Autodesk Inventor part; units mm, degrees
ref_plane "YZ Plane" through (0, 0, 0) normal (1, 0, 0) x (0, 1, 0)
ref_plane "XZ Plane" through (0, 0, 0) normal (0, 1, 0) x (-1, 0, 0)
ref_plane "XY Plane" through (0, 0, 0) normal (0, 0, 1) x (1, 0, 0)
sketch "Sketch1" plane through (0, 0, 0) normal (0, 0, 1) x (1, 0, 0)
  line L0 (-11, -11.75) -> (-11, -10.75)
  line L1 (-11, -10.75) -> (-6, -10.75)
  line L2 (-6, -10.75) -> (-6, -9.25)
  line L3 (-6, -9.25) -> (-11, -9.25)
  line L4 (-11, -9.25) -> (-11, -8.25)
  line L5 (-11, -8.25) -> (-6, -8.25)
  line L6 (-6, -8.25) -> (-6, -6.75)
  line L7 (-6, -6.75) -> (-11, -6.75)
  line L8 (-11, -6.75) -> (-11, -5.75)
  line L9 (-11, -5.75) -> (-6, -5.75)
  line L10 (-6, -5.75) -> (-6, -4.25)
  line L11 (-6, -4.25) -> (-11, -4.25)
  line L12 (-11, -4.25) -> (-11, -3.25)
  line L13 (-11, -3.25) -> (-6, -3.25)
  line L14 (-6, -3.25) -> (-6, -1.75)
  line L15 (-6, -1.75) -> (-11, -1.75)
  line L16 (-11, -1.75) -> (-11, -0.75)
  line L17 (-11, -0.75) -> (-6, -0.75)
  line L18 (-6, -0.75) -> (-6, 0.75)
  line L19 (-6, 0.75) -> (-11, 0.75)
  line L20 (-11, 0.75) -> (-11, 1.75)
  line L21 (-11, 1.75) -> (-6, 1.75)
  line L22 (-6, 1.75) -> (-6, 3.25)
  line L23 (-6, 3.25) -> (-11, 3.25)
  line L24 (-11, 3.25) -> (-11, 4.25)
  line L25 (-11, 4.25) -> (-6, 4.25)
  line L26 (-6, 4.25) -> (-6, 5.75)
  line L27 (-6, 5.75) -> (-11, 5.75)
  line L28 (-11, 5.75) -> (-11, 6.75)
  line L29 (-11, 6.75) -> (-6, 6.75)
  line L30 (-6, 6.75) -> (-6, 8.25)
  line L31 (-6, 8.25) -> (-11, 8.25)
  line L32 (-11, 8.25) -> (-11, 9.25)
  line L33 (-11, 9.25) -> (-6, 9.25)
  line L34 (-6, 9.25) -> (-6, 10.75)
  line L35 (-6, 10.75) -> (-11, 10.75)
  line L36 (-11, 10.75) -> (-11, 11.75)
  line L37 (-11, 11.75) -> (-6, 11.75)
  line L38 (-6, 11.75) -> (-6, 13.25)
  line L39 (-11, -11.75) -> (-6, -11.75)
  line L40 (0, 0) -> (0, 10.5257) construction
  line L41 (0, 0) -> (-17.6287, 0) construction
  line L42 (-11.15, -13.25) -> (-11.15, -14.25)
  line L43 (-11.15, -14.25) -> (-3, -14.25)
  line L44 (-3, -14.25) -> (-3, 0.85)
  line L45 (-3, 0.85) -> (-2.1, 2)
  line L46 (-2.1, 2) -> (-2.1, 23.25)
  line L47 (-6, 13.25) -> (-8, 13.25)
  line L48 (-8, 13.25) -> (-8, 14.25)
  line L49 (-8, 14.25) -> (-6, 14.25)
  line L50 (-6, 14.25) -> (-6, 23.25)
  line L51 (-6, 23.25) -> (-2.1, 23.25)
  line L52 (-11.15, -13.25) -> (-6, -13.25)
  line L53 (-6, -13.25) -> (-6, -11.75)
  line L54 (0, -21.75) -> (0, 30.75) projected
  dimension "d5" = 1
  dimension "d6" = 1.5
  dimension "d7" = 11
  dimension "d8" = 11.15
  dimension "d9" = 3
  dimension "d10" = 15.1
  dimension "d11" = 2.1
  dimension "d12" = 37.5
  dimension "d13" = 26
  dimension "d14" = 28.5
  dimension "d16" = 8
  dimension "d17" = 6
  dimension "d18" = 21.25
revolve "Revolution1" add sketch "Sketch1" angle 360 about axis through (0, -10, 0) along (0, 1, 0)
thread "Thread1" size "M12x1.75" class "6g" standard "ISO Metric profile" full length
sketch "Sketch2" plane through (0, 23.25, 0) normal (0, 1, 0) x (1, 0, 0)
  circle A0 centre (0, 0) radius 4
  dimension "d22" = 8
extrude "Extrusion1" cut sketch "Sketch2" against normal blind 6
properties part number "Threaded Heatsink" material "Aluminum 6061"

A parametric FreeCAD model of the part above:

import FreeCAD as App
import Part
import Sketcher

V = App.Vector
Q = App.Units.Quantity

doc = App.newDocument("Part")
params = doc.addObject("Spreadsheet::Sheet", "Params")
for row, (alias, value) in enumerate([
    ("sketch1_height", "1 mm"),
    ("sketch1_height2", "1.5 mm"),
    ("sketch1_height3", "15.1 mm"),
    ("sketch1_height4", "21.25 mm"),
    ("sketch1_height5", "9 mm"),
    ("revolution_angle", "360 deg"),
    ("sketch2_diameter", "8 mm"),
    ("pocket1_length", "6 mm"),
], start=1):
    params.set(f"A{row}", alias)
    params.set(f"B{row}", "=" + value)
    params.setAlias(f"B{row}", alias)

body = doc.addObject("PartDesign::Body", "Body")

# Sketch on XY plane
sketch1 = doc.addObject("Sketcher::SketchObject", "Sketch")
body.addObject(sketch1)
sketch1.AttachmentSupport = (doc.XY_Plane, [""])
sketch1.MapMode = "FlatFace"
sketch1.addGeometry(Part.LineSegment(V(-11, -10.8, 0), V(-11, -11.8, 0)), False)
sketch1.addGeometry(Part.LineSegment(V(-11, -11.8, 0), V(-6, -11.8, 0)), False)
sketch1.addGeometry(Part.LineSegment(V(-6, -11.8, 0), V(-6, -13.2, 0)), False)
sketch1.addGeometry(Part.LineSegment(V(-6, -13.2, 0), V(-11.2, -13.2, 0)), False)
sketch1.addGeometry(Part.LineSegment(V(-11.2, -13.2, 0), V(-11.2, -14.2, 0)), False)
sketch1.addGeometry(Part.LineSegment(V(-11.2, -14.2, 0), V(-3, -14.2, 0)), False)
sketch1.addGeometry(Part.LineSegment(V(-3, -14.2, 0), V(-3, 0.8, 0)), False)
sketch1.addGeometry(Part.LineSegment(V(-3, 0.8, 0), V(-2.1, 2, 0)), False)
sketch1.addGeometry(Part.LineSegment(V(-2.1, 2, 0), V(-2.1, 23.2, 0)), False)
sketch1.addGeometry(Part.LineSegment(V(-2.1, 23.2, 0), V(-6, 23.2, 0)), False)
sketch1.addGeometry(Part.LineSegment(V(-6, 23.2, 0), V(-6, 14.2, 0)), False)
sketch1.addGeometry(Part.LineSegment(V(-6, 14.2, 0), V(-8, 14.2, 0)), False)
sketch1.addGeometry(Part.LineSegment(V(-8, 14.2, 0), V(-8, 13.2, 0)), False)
sketch1.addGeometry(Part.LineSegment(V(-8, 13.2, 0), V(-6, 13.2, 0)), False)
sketch1.addGeometry(Part.LineSegment(V(-6, 13.2, 0), V(-6, 11.8, 0)), False)
sketch1.addGeometry(Part.LineSegment(V(-6, 11.8, 0), V(-11, 11.8, 0)), False)
sketch1.addGeometry(Part.LineSegment(V(-11, 11.8, 0), V(-11, 10.8, 0)), False)
sketch1.addGeometry(Part.LineSegment(V(-11, 10.8, 0), V(-6, 10.8, 0)), False)
sketch1.addGeometry(Part.LineSegment(V(-6, 10.8, 0), V(-6, 9.2, 0)), False)
sketch1.addGeometry(Part.LineSegment(V(-6, 9.2, 0), V(-11, 9.2, 0)), False)
sketch1.addGeometry(Part.LineSegment(V(-11, 9.2, 0), V(-11, 8.2, 0)), False)
sketch1.addGeometry(Part.LineSegment(V(-11, 8.2, 0), V(-6, 8.2, 0)), False)
sketch1.addGeometry(Part.LineSegment(V(-6, 8.2, 0), V(-6, 6.8, 0)), False)
sketch1.addGeometry(Part.LineSegment(V(-6, 6.8, 0), V(-11, 6.8, 0)), False)
sketch1.addGeometry(Part.LineSegment(V(-11, 6.8, 0), V(-11, 5.8, 0)), False)
sketch1.addGeometry(Part.LineSegment(V(-11, 5.8, 0), V(-6, 5.8, 0)), False)
sketch1.addGeometry(Part.LineSegment(V(-6, 5.8, 0), V(-6, 4.2, 0)), False)
sketch1.addGeometry(Part.LineSegment(V(-6, 4.2, 0), V(-11, 4.2, 0)), False)
sketch1.addGeometry(Part.LineSegment(V(-11, 4.2, 0), V(-11, 3.2, 0)), False)
sketch1.addGeometry(Part.LineSegment(V(-11, 3.2, 0), V(-6, 3.2, 0)), False)
sketch1.addGeometry(Part.LineSegment(V(-6, 3.2, 0), V(-6, 1.8, 0)), False)
sketch1.addGeometry(Part.LineSegment(V(-6, 1.8, 0), V(-11, 1.8, 0)), False)
sketch1.addGeometry(Part.LineSegment(V(-11, 1.8, 0), V(-11, 0.8, 0)), False)
sketch1.addGeometry(Part.LineSegment(V(-11, 0.8, 0), V(-6, 0.8, 0)), False)
sketch1.addGeometry(Part.LineSegment(V(-6, 0.8, 0), V(-6, -0.8, 0)), False)
sketch1.addGeometry(Part.LineSegment(V(-6, -0.8, 0), V(-11, -0.8, 0)), False)
sketch1.addGeometry(Part.LineSegment(V(-11, -0.8, 0), V(-11, -1.8, 0)), False)
sketch1.addGeometry(Part.LineSegment(V(-11, -1.8, 0), V(-6, -1.8, 0)), False)
sketch1.addGeometry(Part.LineSegment(V(-6, -1.8, 0), V(-6, -3.2, 0)), False)
sketch1.addGeometry(Part.LineSegment(V(-6, -3.2, 0), V(-11, -3.2, 0)), False)
sketch1.addGeometry(Part.LineSegment(V(-11, -3.2, 0), V(-11, -4.2, 0)), False)
sketch1.addGeometry(Part.LineSegment(V(-11, -4.2, 0), V(-6, -4.2, 0)), False)
sketch1.addGeometry(Part.LineSegment(V(-6, -4.2, 0), V(-6, -5.8, 0)), False)
sketch1.addGeometry(Part.LineSegment(V(-6, -5.8, 0), V(-11, -5.8, 0)), False)
sketch1.addGeometry(Part.LineSegment(V(-11, -5.8, 0), V(-11, -6.8, 0)), False)
sketch1.addGeometry(Part.LineSegment(V(-11, -6.8, 0), V(-6, -6.8, 0)), False)
sketch1.addGeometry(Part.LineSegment(V(-6, -6.8, 0), V(-6, -8.2, 0)), False)
sketch1.addGeometry(Part.LineSegment(V(-6, -8.2, 0), V(-11, -8.2, 0)), False)
sketch1.addGeometry(Part.LineSegment(V(-11, -8.2, 0), V(-11, -9.2, 0)), False)
sketch1.addGeometry(Part.LineSegment(V(-11, -9.2, 0), V(-6, -9.2, 0)), False)
sketch1.addGeometry(Part.LineSegment(V(-6, -9.2, 0), V(-6, -10.8, 0)), False)
sketch1.addGeometry(Part.LineSegment(V(-6, -10.8, 0), V(-11, -10.8, 0)), False)
sketch1.addConstraint(Sketcher.Constraint("Coincident", 0, 2, 1, 1))
sketch1.addConstraint(Sketcher.Constraint("Coincident", 1, 2, 2, 1))
sketch1.addConstraint(Sketcher.Constraint("Coincident", 2, 2, 3, 1))
sketch1.addConstraint(Sketcher.Constraint("Coincident", 3, 2, 4, 1))
sketch1.addConstraint(Sketcher.Constraint("Coincident", 4, 2, 5, 1))
sketch1.addConstraint(Sketcher.Constraint("Coincident", 5, 2, 6, 1))
sketch1.addConstraint(Sketcher.Constraint("Coincident", 6, 2, 7, 1))
sketch1.addConstraint(Sketcher.Constraint("Coincident", 7, 2, 8, 1))
sketch1.addConstraint(Sketcher.Constraint("Coincident", 8, 2, 9, 1))
sketch1.addConstraint(Sketcher.Constraint("Coincident", 9, 2, 10, 1))
sketch1.addConstraint(Sketcher.Constraint("Coincident", 10, 2, 11, 1))
sketch1.addConstraint(Sketcher.Constraint("Coincident", 11, 2, 12, 1))
sketch1.addConstraint(Sketcher.Constraint("Coincident", 12, 2, 13, 1))
sketch1.addConstraint(Sketcher.Constraint("Coincident", 13, 2, 14, 1))
sketch1.addConstraint(Sketcher.Constraint("Coincident", 14, 2, 15, 1))
sketch1.addConstraint(Sketcher.Constraint("Coincident", 15, 2, 16, 1))
sketch1.addConstraint(Sketcher.Constraint("Coincident", 16, 2, 17, 1))
sketch1.addConstraint(Sketcher.Constraint("Coincident", 17, 2, 18, 1))
sketch1.addConstraint(Sketcher.Constraint("Coincident", 18, 2, 19, 1))
sketch1.addConstraint(Sketcher.Constraint("Coincident", 19, 2, 20, 1))
sketch1.addConstraint(Sketcher.Constraint("Coincident", 20, 2, 21, 1))
sketch1.addConstraint(Sketcher.Constraint("Coincident", 21, 2, 22, 1))
sketch1.addConstraint(Sketcher.Constraint("Coincident", 22, 2, 23, 1))
sketch1.addConstraint(Sketcher.Constraint("Coincident", 23, 2, 24, 1))
sketch1.addConstraint(Sketcher.Constraint("Coincident", 24, 2, 25, 1))
sketch1.addConstraint(Sketcher.Constraint("Coincident", 25, 2, 26, 1))
sketch1.addConstraint(Sketcher.Constraint("Coincident", 26, 2, 27, 1))
sketch1.addConstraint(Sketcher.Constraint("Coincident", 27, 2, 28, 1))
sketch1.addConstraint(Sketcher.Constraint("Coincident", 28, 2, 29, 1))
sketch1.addConstraint(Sketcher.Constraint("Coincident", 29, 2, 30, 1))
sketch1.addConstraint(Sketcher.Constraint("Coincident", 30, 2, 31, 1))
sketch1.addConstraint(Sketcher.Constraint("Coincident", 31, 2, 32, 1))
sketch1.addConstraint(Sketcher.Constraint("Coincident", 32, 2, 33, 1))
sketch1.addConstraint(Sketcher.Constraint("Coincident", 33, 2, 34, 1))
sketch1.addConstraint(Sketcher.Constraint("Coincident", 34, 2, 35, 1))
sketch1.addConstraint(Sketcher.Constraint("Coincident", 35, 2, 36, 1))
sketch1.addConstraint(Sketcher.Constraint("Coincident", 36, 2, 37, 1))
sketch1.addConstraint(Sketcher.Constraint("Coincident", 37, 2, 38, 1))
sketch1.addConstraint(Sketcher.Constraint("Coincident", 38, 2, 39, 1))
sketch1.addConstraint(Sketcher.Constraint("Coincident", 39, 2, 40, 1))
sketch1.addConstraint(Sketcher.Constraint("Coincident", 40, 2, 41, 1))
sketch1.addConstraint(Sketcher.Constraint("Coincident", 41, 2, 42, 1))
sketch1.addConstraint(Sketcher.Constraint("Coincident", 42, 2, 43, 1))
sketch1.addConstraint(Sketcher.Constraint("Coincident", 43, 2, 44, 1))
sketch1.addConstraint(Sketcher.Constraint("Coincident", 44, 2, 45, 1))
sketch1.addConstraint(Sketcher.Constraint("Coincident", 45, 2, 46, 1))
sketch1.addConstraint(Sketcher.Constraint("Coincident", 46, 2, 47, 1))
sketch1.addConstraint(Sketcher.Constraint("Coincident", 47, 2, 48, 1))
sketch1.addConstraint(Sketcher.Constraint("Coincident", 48, 2, 49, 1))
sketch1.addConstraint(Sketcher.Constraint("Coincident", 49, 2, 50, 1))
sketch1.addConstraint(Sketcher.Constraint("Coincident", 50, 2, 51, 1))
sketch1.addConstraint(Sketcher.Constraint("Coincident", 51, 2, 0, 1))
sketch1.addConstraint(Sketcher.Constraint("Vertical", 0))
sketch1.addConstraint(Sketcher.Constraint("Horizontal", 1))
sketch1.addConstraint(Sketcher.Constraint("Vertical", 2))
sketch1.addConstraint(Sketcher.Constraint("Horizontal", 3))
sketch1.addConstraint(Sketcher.Constraint("Vertical", 4))
sketch1.addConstraint(Sketcher.Constraint("Horizontal", 5))
sketch1.addConstraint(Sketcher.Constraint("Vertical", 6))
sketch1.addConstraint(Sketcher.Constraint("Vertical", 8))
sketch1.addConstraint(Sketcher.Constraint("Horizontal", 9))
sketch1.addConstraint(Sketcher.Constraint("Vertical", 10))
sketch1.addConstraint(Sketcher.Constraint("Horizontal", 11))
sketch1.addConstraint(Sketcher.Constraint("Vertical", 12))
sketch1.addConstraint(Sketcher.Constraint("Horizontal", 13))
sketch1.addConstraint(Sketcher.Constraint("Vertical", 14))
sketch1.addConstraint(Sketcher.Constraint("Horizontal", 15))
sketch1.addConstraint(Sketcher.Constraint("Vertical", 16))
sketch1.addConstraint(Sketcher.Constraint("Horizontal", 17))
sketch1.addConstraint(Sketcher.Constraint("Vertical", 18))
sketch1.addConstraint(Sketcher.Constraint("Horizontal", 19))
sketch1.addConstraint(Sketcher.Constraint("Vertical", 20))
sketch1.addConstraint(Sketcher.Constraint("Horizontal", 21))
sketch1.addConstraint(Sketcher.Constraint("Vertical", 22))
sketch1.addConstraint(Sketcher.Constraint("Horizontal", 23))
sketch1.addConstraint(Sketcher.Constraint("Vertical", 24))
sketch1.addConstraint(Sketcher.Constraint("Horizontal", 25))
sketch1.addConstraint(Sketcher.Constraint("Vertical", 26))
sketch1.addConstraint(Sketcher.Constraint("Horizontal", 27))
sketch1.addConstraint(Sketcher.Constraint("Vertical", 28))
sketch1.addConstraint(Sketcher.Constraint("Horizontal", 29))
sketch1.addConstraint(Sketcher.Constraint("Vertical", 30))
sketch1.addConstraint(Sketcher.Constraint("Horizontal", 31))
sketch1.addConstraint(Sketcher.Constraint("Vertical", 32))
sketch1.addConstraint(Sketcher.Constraint("Horizontal", 33))
sketch1.addConstraint(Sketcher.Constraint("Vertical", 34))
sketch1.addConstraint(Sketcher.Constraint("Horizontal", 35))
sketch1.addConstraint(Sketcher.Constraint("Vertical", 36))
sketch1.addConstraint(Sketcher.Constraint("Horizontal", 37))
sketch1.addConstraint(Sketcher.Constraint("Vertical", 38))
sketch1.addConstraint(Sketcher.Constraint("Horizontal", 39))
sketch1.addConstraint(Sketcher.Constraint("Vertical", 40))
sketch1.addConstraint(Sketcher.Constraint("Horizontal", 41))
sketch1.addConstraint(Sketcher.Constraint("Vertical", 42))
sketch1.addConstraint(Sketcher.Constraint("Horizontal", 43))
sketch1.addConstraint(Sketcher.Constraint("Vertical", 44))
sketch1.addConstraint(Sketcher.Constraint("Horizontal", 45))
sketch1.addConstraint(Sketcher.Constraint("Vertical", 46))
sketch1.addConstraint(Sketcher.Constraint("Horizontal", 47))
sketch1.addConstraint(Sketcher.Constraint("Vertical", 48))
sketch1.addConstraint(Sketcher.Constraint("Horizontal", 49))
sketch1.addConstraint(Sketcher.Constraint("Vertical", 50))
sketch1.addConstraint(Sketcher.Constraint("Horizontal", 51))
sketch1.addConstraint(Sketcher.Constraint("Symmetric", 2, 2, 13, 2, -1))
sketch1.addConstraint(Sketcher.Constraint("Symmetric", 0, 2, 15, 2, -1))
sketch1.addConstraint(Sketcher.Constraint("Symmetric", 32, 2, 35, 2, -1))
sketch1.addConstraint(Sketcher.Constraint("Symmetric", 30, 2, 37, 2, -1))
sketch1.addConstraint(Sketcher.Constraint("Symmetric", 28, 2, 39, 2, -1))
sketch1.addConstraint(Sketcher.Constraint("Symmetric", 26, 2, 41, 2, -1))
sketch1.addConstraint(Sketcher.Constraint("Symmetric", 24, 2, 43, 2, -1))
sketch1.addConstraint(Sketcher.Constraint("Symmetric", 22, 2, 45, 2, -1))
sketch1.addConstraint(Sketcher.Constraint("Symmetric", 20, 2, 47, 2, -1))
sketch1.addConstraint(Sketcher.Constraint("Symmetric", 18, 2, 49, 2, -1))
sketch1.addConstraint(Sketcher.Constraint("Vertical", 2, 2, 9, 2))
sketch1.addConstraint(Sketcher.Constraint("Vertical", 14, 2, 17, 2))
sketch1.addConstraint(Sketcher.Constraint("Vertical", 16, 2, 19, 2))
sketch1.addConstraint(Sketcher.Constraint("Vertical", 18, 2, 21, 2))
sketch1.addConstraint(Sketcher.Constraint("Vertical", 20, 2, 23, 2))
sketch1.addConstraint(Sketcher.Constraint("Vertical", 22, 2, 25, 2))
sketch1.addConstraint(Sketcher.Constraint("Vertical", 24, 2, 27, 2))
sketch1.addConstraint(Sketcher.Constraint("Vertical", 26, 2, 29, 2))
sketch1.addConstraint(Sketcher.Constraint("Vertical", 28, 2, 31, 2))
sketch1.addConstraint(Sketcher.Constraint("Vertical", 30, 2, 33, 2))
sketch1.addConstraint(Sketcher.Constraint("Equal", 0, 4))
sketch1.addConstraint(Sketcher.Constraint("Equal", 4, 12))
sketch1.addConstraint(Sketcher.Constraint("Equal", 12, 16))
sketch1.addConstraint(Sketcher.Constraint("Equal", 14, 18))
sketch1.addConstraint(Sketcher.Constraint("Equal", 16, 20))
sketch1.addConstraint(Sketcher.Constraint("Equal", 18, 22))
sketch1.addConstraint(Sketcher.Constraint("Equal", 20, 24))
sketch1.addConstraint(Sketcher.Constraint("Equal", 22, 26))
sketch1.addConstraint(Sketcher.Constraint("Equal", 24, 28))
sketch1.addConstraint(Sketcher.Constraint("Equal", 26, 30))
sketch1.addConstraint(Sketcher.Constraint("Equal", 28, 32))
sketch1.addConstraint(Sketcher.Constraint("Equal", 30, 34))
sketch1.addConstraint(Sketcher.Constraint("DistanceY", 0, 2, 0, 1, Q("1 mm")))
sketch1.addConstraint(Sketcher.Constraint("DistanceY", 2, 2, 2, 1, Q("1.5 mm")))
sketch1.addConstraint(Sketcher.Constraint("DistanceY", 6, 1, 6, 2, Q("15.1 mm")))
sketch1.addConstraint(Sketcher.Constraint("DistanceX", 0, 2, -1, 1, Q("11 mm")))
sketch1.addConstraint(Sketcher.Constraint("DistanceX", 1, 2, -1, 1, Q("6 mm")))
sketch1.addConstraint(Sketcher.Constraint("DistanceX", 5, 2, -1, 1, Q("3 mm")))
sketch1.addConstraint(Sketcher.Constraint("DistanceX", 11, 2, -1, 1, Q("8 mm")))
sketch1.addConstraint(Sketcher.Constraint("DistanceY", 8, 1, 8, 2, Q("21.25 mm")))
sketch1.addConstraint(Sketcher.Constraint("DistanceX", 7, 2, -1, 1, Q("2.1 mm")))
sketch1.addConstraint(Sketcher.Constraint("DistanceY", 10, 2, 10, 1, Q("9 mm")))
sketch1.addConstraint(Sketcher.Constraint("DistanceX", 3, 2, -1, 1, Q("11.15 mm")))
sketch1.setExpression("Constraints[135]", "Params.sketch1_height")
sketch1.setExpression("Constraints[136]", "Params.sketch1_height2")
sketch1.setExpression("Constraints[137]", "Params.sketch1_height3")
sketch1.setExpression("Constraints[142]", "Params.sketch1_height4")
sketch1.setExpression("Constraints[144]", "Params.sketch1_height5")
revolution = doc.addObject("PartDesign::Revolution", "Revolution")
body.addObject(revolution)
revolution.Profile = sketch1
revolution.ReferenceAxis = (sketch1, ["V_Axis"])
revolution.setExpression("Angle", "Params.revolution_angle")

# Sketch on XZ plane
sketch2 = doc.addObject("Sketcher::SketchObject", "Sketch001")
body.addObject(sketch2)
sketch2.AttachmentSupport = (doc.XZ_Plane, [""])
sketch2.MapMode = "FlatFace"
sketch2.AttachmentOffset = App.Placement(V(0, 0, -23.25), App.Rotation())
sketch2.addGeometry(Part.Circle(V(0, 0, 0), V(0, 0, 1), 4), False)
sketch2.addConstraint(Sketcher.Constraint("Coincident", 0, 3, -1, 1))
sketch2.addConstraint(Sketcher.Constraint("Diameter", 0, Q("8 mm")))
sketch2.setExpression("Constraints[1]", "Params.sketch2_diameter")
pocket1 = doc.addObject("PartDesign::Pocket", "Pocket")
body.addObject(pocket1)
pocket1.Profile = sketch2
pocket1.setExpression("Length", "Params.pocket1_length")
pocket1.Reversed = True

doc.recompute()
